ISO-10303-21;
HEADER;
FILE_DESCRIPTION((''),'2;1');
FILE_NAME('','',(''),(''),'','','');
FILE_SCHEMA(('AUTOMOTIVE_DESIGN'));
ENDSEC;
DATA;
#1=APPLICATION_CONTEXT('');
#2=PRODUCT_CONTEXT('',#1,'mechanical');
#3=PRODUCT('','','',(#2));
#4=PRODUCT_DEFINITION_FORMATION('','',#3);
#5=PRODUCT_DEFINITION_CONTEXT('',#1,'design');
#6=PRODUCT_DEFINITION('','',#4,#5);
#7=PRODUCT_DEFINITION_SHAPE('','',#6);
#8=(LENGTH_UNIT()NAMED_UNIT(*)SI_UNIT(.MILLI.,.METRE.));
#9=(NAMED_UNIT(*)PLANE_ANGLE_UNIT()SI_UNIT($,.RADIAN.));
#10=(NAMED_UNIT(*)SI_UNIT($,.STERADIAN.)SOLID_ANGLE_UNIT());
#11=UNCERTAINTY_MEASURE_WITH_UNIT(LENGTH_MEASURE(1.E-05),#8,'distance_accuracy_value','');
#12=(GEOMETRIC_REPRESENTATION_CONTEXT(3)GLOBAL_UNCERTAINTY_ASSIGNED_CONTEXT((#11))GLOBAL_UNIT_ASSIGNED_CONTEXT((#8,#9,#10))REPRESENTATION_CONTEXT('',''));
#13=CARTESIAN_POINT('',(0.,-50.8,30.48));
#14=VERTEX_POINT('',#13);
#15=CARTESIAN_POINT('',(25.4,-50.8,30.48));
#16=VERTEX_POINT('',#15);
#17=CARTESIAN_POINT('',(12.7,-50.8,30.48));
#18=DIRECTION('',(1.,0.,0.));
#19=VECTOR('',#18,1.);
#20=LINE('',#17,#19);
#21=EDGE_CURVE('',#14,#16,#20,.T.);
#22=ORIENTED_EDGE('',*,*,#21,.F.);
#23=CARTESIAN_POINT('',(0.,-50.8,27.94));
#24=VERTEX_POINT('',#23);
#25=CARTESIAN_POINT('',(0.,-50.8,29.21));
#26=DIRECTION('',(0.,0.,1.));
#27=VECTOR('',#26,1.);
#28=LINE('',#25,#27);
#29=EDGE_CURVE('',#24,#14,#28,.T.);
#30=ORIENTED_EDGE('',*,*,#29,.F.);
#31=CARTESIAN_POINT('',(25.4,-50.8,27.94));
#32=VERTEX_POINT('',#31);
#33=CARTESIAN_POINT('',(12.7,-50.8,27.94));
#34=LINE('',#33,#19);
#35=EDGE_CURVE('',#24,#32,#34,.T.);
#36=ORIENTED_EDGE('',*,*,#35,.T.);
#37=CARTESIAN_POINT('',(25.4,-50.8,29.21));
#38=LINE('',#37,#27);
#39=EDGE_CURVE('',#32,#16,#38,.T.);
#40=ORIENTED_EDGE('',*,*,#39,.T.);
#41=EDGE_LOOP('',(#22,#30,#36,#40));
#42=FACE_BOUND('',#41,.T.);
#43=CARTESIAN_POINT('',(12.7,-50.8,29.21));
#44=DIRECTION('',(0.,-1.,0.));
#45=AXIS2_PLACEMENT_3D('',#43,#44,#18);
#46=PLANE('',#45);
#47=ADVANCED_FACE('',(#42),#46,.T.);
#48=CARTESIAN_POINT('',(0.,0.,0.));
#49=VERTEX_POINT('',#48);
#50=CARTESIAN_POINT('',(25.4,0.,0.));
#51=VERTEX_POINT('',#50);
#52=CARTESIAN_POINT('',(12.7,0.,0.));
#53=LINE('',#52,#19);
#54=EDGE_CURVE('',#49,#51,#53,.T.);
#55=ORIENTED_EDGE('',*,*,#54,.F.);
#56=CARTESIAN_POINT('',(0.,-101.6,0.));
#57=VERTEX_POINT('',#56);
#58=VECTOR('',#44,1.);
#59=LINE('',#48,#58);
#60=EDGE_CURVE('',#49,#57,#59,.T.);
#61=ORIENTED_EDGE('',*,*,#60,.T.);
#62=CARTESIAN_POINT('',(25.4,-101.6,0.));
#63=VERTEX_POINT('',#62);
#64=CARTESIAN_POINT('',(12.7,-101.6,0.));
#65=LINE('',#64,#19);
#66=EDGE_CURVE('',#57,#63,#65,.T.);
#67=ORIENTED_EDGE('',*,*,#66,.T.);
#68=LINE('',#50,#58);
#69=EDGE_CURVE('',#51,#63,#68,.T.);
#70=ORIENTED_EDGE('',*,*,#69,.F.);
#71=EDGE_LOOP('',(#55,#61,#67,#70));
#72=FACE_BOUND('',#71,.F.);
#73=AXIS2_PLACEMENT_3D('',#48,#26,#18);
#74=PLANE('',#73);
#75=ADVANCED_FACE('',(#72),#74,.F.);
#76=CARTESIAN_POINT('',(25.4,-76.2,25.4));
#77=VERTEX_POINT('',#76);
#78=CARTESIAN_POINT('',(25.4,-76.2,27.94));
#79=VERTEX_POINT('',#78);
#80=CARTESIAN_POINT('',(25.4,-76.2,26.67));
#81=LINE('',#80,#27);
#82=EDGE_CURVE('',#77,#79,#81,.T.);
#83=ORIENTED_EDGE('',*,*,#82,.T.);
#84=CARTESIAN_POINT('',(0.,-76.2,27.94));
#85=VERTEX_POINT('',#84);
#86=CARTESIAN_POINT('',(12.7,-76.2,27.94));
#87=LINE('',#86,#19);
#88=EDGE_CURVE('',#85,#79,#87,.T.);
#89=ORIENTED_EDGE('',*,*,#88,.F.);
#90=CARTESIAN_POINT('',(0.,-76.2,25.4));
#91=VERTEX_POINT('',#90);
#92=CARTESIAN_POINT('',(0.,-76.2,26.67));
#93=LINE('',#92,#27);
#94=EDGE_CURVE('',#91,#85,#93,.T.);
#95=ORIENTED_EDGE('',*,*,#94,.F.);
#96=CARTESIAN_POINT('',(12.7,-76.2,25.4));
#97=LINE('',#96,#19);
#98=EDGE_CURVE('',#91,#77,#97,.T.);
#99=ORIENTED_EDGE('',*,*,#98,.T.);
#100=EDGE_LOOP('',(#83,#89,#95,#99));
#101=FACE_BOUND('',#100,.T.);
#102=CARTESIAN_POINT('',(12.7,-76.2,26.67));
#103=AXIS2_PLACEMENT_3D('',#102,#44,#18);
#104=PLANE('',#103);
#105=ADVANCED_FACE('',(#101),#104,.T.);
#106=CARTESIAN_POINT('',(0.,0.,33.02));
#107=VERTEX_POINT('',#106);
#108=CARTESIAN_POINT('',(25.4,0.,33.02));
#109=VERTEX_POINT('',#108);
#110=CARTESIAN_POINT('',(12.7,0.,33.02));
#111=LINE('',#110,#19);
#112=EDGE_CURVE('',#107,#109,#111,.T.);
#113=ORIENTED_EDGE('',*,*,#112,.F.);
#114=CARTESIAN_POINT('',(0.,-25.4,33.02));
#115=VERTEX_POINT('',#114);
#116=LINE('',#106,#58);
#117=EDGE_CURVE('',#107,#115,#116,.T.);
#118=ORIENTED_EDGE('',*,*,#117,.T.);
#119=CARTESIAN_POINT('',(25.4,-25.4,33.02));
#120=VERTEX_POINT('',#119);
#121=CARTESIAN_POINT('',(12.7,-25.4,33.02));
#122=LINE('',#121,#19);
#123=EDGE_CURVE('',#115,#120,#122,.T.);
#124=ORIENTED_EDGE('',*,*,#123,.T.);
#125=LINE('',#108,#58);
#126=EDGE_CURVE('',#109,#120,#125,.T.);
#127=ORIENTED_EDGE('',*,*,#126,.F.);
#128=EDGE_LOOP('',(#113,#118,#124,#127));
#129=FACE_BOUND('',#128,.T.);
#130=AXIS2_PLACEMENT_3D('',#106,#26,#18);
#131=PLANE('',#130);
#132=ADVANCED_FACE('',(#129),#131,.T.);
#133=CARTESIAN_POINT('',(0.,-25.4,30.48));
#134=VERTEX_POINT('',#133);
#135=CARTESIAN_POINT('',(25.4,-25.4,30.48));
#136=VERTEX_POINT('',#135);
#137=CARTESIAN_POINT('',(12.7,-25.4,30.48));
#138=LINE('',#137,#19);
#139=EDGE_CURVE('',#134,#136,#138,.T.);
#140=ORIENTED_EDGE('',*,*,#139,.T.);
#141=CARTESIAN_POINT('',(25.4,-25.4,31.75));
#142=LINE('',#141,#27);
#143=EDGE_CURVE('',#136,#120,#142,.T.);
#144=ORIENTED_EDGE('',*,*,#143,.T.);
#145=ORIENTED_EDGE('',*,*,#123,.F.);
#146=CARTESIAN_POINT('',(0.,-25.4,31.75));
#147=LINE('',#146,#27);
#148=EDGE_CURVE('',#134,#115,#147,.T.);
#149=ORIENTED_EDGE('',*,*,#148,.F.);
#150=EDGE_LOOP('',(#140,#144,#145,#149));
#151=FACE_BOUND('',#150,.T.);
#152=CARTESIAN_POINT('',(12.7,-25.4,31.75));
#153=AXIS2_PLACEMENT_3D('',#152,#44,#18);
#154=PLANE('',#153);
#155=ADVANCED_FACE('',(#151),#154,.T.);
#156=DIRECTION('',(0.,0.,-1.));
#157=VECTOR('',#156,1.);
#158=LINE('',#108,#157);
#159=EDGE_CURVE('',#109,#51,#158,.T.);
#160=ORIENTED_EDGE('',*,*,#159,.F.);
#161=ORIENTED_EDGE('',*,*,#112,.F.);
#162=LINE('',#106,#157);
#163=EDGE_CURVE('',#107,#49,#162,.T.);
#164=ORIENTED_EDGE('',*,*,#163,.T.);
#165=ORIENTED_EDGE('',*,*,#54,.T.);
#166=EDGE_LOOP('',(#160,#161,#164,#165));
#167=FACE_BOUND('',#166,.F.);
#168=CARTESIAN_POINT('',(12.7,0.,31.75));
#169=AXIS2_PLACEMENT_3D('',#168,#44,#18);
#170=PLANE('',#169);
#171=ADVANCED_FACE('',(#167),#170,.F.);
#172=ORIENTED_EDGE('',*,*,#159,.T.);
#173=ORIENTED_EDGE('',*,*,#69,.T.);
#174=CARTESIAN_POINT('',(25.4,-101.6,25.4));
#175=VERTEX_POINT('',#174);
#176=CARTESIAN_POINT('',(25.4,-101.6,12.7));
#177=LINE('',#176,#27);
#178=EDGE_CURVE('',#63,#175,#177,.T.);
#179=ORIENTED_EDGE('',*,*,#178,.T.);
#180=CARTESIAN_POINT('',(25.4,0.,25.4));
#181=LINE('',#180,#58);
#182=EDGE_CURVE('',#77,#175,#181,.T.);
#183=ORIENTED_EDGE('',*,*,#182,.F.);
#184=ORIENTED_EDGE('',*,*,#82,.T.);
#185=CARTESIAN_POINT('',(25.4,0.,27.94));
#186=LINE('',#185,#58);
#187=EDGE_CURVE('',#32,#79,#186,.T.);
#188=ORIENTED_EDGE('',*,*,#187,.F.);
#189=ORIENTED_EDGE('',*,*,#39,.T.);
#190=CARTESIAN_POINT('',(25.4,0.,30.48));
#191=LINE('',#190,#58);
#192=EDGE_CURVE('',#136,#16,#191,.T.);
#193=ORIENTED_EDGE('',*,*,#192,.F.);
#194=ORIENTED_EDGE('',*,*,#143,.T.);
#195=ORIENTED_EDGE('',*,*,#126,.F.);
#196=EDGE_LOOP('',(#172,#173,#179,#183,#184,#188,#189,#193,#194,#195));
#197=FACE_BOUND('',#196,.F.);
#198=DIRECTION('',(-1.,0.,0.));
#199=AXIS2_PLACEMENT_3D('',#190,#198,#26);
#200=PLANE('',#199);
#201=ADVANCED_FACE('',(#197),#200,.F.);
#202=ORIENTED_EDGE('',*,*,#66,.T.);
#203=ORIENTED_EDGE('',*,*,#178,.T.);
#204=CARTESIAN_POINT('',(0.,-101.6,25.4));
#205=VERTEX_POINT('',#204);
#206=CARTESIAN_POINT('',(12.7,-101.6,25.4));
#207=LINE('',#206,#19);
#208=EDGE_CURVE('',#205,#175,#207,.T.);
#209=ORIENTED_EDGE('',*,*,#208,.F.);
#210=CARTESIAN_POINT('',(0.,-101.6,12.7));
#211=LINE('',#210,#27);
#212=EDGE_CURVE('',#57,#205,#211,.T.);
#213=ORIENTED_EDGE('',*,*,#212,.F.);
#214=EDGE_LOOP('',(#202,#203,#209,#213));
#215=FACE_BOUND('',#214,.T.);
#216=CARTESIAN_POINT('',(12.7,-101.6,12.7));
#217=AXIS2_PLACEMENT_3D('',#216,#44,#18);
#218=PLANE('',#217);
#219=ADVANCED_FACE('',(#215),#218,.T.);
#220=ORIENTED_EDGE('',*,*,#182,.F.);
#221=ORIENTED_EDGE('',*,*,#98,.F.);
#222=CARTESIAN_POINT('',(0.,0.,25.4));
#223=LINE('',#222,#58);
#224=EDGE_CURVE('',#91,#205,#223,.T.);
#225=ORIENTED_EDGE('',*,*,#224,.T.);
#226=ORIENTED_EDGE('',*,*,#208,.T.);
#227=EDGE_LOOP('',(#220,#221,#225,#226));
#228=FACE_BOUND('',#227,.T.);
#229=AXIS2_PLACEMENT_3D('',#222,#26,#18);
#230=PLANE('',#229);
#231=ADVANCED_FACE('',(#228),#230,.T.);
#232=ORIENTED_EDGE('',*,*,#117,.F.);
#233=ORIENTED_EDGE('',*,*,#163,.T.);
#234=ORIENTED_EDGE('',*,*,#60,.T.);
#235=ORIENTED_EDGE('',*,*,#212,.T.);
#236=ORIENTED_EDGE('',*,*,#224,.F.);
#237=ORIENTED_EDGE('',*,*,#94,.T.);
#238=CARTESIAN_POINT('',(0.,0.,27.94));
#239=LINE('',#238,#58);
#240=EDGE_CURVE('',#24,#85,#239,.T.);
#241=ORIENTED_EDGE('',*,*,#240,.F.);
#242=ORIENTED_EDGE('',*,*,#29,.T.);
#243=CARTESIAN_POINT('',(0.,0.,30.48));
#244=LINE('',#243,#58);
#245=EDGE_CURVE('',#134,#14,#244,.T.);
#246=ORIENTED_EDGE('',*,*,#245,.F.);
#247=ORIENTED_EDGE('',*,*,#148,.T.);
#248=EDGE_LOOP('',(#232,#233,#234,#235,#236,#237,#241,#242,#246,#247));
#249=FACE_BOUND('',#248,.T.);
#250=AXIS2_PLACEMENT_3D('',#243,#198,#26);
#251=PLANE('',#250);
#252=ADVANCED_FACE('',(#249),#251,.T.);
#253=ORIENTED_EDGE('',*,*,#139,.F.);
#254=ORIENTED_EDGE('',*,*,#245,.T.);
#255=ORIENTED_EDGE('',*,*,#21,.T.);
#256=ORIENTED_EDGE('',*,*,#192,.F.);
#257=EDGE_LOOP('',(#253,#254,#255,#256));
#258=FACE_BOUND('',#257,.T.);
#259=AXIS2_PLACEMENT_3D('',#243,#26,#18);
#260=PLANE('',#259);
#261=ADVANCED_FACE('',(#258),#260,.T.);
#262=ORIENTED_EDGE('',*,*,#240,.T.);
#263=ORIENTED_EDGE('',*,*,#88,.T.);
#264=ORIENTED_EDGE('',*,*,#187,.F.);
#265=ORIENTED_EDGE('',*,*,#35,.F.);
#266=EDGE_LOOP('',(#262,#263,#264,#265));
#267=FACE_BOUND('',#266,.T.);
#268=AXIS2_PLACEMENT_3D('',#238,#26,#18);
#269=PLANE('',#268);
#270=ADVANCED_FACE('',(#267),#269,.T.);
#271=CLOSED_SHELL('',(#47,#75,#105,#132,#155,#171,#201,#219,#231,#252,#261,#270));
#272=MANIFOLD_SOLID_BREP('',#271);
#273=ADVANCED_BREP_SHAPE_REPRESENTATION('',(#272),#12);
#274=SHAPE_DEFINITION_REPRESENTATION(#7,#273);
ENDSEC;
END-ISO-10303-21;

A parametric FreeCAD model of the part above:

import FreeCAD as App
import Part
import Sketcher
Q = App.Units.Quantity


def add_polygon(sketch, points):
    """Adds a closed chain of lines whose ends are joined by coincident constraints."""
    first, n = sketch.GeometryCount, len(points)
    for a, b in zip(points, points[1:] + points[:1]):
        sketch.addGeometry(Part.LineSegment(App.Vector(*a, 0), App.Vector(*b, 0)), False)
    for i in range(n):
        sketch.addConstraint(Sketcher.Constraint("Coincident", first + i, 2, first + (i + 1) % n, 1))

doc = App.newDocument("Part")
body = doc.addObject("PartDesign::Body", "Body")

sketch1 = body.newObject("Sketcher::SketchObject", "Sketch")
sketch1.AttachmentSupport = (doc.getObject("XZ_Plane"), [""])
sketch1.MapMode = "FlatFace"
add_polygon(sketch1, [(0, 25), (0, 0), (25, 0), (25, 25)])
sketch1.addConstraint([
    Sketcher.Constraint("Vertical", 0),
    Sketcher.Constraint("Horizontal", 1),
    Sketcher.Constraint("Vertical", 2),
    Sketcher.Constraint("Horizontal", 3),
    Sketcher.Constraint("Coincident", 0, 2, -1, 1),
    Sketcher.Constraint("Equal", 3, 0),
    Sketcher.Constraint("DistanceX", 1, 1, 1, 2, Q("1 in")),
])
pad1 = body.newObject("PartDesign::Pad", "Pad")
pad1.Profile = sketch1
pad1.Length = Q("4 in")

sketch2 = body.newObject("Sketcher::SketchObject", "Sketch001")
sketch2.AttachmentSupport = (doc.getObject("XZ_Plane"), [""])
sketch2.MapMode = "FlatFace"
add_polygon(sketch2, [(0, 27.9), (0, 25.4), (25.4, 25.4), (25.4, 27.9)])
sketch2.addConstraint([
    Sketcher.Constraint("Vertical", 0),
    Sketcher.Constraint("Horizontal", 1),
    Sketcher.Constraint("Vertical", 2),
    Sketcher.Constraint("Horizontal", 3),
    Sketcher.Constraint("PointOnObject", 0, 2, -2),
    Sketcher.Constraint("DistanceX", 1, 1, 1, 2, Q("1 in")),
    Sketcher.Constraint("DistanceY", 0, 2, 0, 1, Q("0.1 in")),
    Sketcher.Constraint("DistanceY", -1, 1, 0, 2, Q("1 in")),
])
pad2 = body.newObject("PartDesign::Pad", "Pad001")
pad2.Profile = sketch2
pad2.Length = Q("3 in")

sketch3 = body.newObject("Sketcher::SketchObject", "Sketch002")
sketch3.AttachmentSupport = (doc.getObject("XZ_Plane"), [""])
sketch3.MapMode = "FlatFace"
add_polygon(sketch3, [(0, 30.5), (0, 27.9), (25.4, 27.9), (25.4, 30.5)])
sketch3.addConstraint([
    Sketcher.Constraint("Vertical", 0),
    Sketcher.Constraint("Horizontal", 1),
    Sketcher.Constraint("Vertical", 2),
    Sketcher.Constraint("Horizontal", 3),
    Sketcher.Constraint("PointOnObject", 0, 2, -2),
    Sketcher.Constraint("DistanceX", 1, 1, 1, 2, Q("1 in")),
    Sketcher.Constraint("DistanceY", 0, 2, 0, 1, Q("0.1 in")),
    Sketcher.Constraint("DistanceY", -1, 1, 0, 2, Q("1.1 in")),
])
pad3 = body.newObject("PartDesign::Pad", "Pad002")
pad3.Profile = sketch3
pad3.Length = Q("2 in")

sketch4 = body.newObject("Sketcher::SketchObject", "Sketch003")
sketch4.AttachmentSupport = (doc.getObject("XZ_Plane"), [""])
sketch4.MapMode = "FlatFace"
add_polygon(sketch4, [(0, 33), (0, 30.5), (25.4, 30.5), (25.4, 33)])
sketch4.addConstraint([
    Sketcher.Constraint("Vertical", 0),
    Sketcher.Constraint("Horizontal", 1),
    Sketcher.Constraint("Vertical", 2),
    Sketcher.Constraint("Horizontal", 3),
    Sketcher.Constraint("PointOnObject", 0, 2, -2),
    Sketcher.Constraint("DistanceX", 1, 1, 1, 2, Q("1 in")),
    Sketcher.Constraint("DistanceY", 0, 2, 0, 1, Q("0.1 in")),
    Sketcher.Constraint("DistanceY", -1, 1, 0, 2, Q("1.2 in")),
])
pad4 = body.newObject("PartDesign::Pad", "Pad003")
pad4.Profile = sketch4
pad4.Length = Q("1 in")

doc.recompute()
